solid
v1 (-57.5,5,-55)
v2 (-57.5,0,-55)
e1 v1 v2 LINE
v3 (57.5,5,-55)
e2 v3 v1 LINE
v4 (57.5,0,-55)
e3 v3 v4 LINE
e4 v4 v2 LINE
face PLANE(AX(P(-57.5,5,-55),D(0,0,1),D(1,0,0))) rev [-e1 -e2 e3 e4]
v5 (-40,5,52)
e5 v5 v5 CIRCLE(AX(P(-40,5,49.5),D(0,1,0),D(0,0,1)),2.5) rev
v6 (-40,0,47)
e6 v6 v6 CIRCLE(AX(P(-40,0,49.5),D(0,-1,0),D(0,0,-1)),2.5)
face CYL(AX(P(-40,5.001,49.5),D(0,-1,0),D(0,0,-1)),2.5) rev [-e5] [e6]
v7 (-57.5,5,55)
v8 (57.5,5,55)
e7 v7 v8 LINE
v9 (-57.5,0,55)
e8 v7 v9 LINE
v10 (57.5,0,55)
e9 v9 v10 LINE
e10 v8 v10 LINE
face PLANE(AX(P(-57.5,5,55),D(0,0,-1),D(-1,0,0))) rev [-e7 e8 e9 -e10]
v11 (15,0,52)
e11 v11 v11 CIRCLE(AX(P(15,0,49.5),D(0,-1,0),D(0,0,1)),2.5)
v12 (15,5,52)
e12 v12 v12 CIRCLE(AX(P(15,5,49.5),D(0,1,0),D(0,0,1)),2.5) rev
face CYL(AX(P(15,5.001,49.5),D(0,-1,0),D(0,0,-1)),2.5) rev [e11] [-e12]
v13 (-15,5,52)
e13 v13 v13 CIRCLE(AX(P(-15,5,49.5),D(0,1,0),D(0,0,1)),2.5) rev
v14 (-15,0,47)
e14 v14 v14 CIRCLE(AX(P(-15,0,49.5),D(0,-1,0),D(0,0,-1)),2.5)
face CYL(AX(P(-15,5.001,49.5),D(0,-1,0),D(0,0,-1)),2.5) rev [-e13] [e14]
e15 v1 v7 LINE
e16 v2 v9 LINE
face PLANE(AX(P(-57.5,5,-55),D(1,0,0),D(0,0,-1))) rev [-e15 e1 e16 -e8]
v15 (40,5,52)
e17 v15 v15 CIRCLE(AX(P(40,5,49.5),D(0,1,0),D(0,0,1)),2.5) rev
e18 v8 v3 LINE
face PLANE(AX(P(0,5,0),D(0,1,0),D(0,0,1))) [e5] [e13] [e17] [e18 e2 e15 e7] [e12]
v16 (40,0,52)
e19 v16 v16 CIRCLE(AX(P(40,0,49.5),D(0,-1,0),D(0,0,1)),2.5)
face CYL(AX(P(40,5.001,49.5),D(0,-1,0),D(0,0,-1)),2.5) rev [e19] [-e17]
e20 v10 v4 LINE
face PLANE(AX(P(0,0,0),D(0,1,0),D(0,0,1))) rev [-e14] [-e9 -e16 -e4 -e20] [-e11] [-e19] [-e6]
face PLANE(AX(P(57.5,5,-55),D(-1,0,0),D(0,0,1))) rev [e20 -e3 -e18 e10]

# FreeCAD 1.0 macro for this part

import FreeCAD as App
import Part
import Sketcher

V = App.Vector

doc = App.newDocument("Part")
body = doc.addObject("PartDesign::Body", "Body")

# Sketch on XZ plane
sketch1 = body.newObject("Sketcher::SketchObject", "Sketch")
sketch1.AttachmentSupport = (doc.getObject("XZ_Plane"), [""])
sketch1.MapMode = "FlatFace"
sketch1.addGeometry(Part.LineSegment(V(-58, -55, 0), V(-58, 55, 0)), False)
sketch1.addGeometry(Part.LineSegment(V(-58, 55, 0), V(58, 55, 0)), False)
sketch1.addGeometry(Part.LineSegment(V(58, 55, 0), V(58, -55, 0)), False)
sketch1.addGeometry(Part.LineSegment(V(58, -55, 0), V(-58, -55, 0)), False)
sketch1.addConstraint(Sketcher.Constraint("Coincident", 0, 2, 1, 1))
sketch1.addConstraint(Sketcher.Constraint("Coincident", 1, 2, 2, 1))
sketch1.addConstraint(Sketcher.Constraint("Coincident", 2, 2, 3, 1))
sketch1.addConstraint(Sketcher.Constraint("Coincident", 3, 2, 0, 1))
sketch1.addConstraint(Sketcher.Constraint("Vertical", 0))
sketch1.addConstraint(Sketcher.Constraint("Horizontal", 1))
sketch1.addConstraint(Sketcher.Constraint("Vertical", 2))
sketch1.addConstraint(Sketcher.Constraint("Horizontal", 3))
sketch1.addConstraint(Sketcher.Constraint("Symmetric", 0, 2, 2, 2, -1, 1))
sketch1.addConstraint(Sketcher.Constraint("DistanceX", 1, 1, 1, 2, 115.0))
sketch1.addConstraint(Sketcher.Constraint("DistanceY", 0, 1, 0, 2, 110.0))
pad1 = body.newObject("PartDesign::Pad", "Pad")
pad1.Profile = sketch1
pad1.Length = 5
pad1.Reversed = True

# Sketch on XZ plane
sketch2 = body.newObject("Sketcher::SketchObject", "Sketch001")
sketch2.AttachmentSupport = (doc.getObject("XZ_Plane"), [""])
sketch2.MapMode = "FlatFace"
sketch2.addGeometry(Part.Circle(V(-40, 49.5, 0), V(0, 0, 1), 2.5), False)
sketch2.addConstraint(Sketcher.Constraint("Diameter", 0, 5.0))
sketch2.addConstraint(Sketcher.Constraint("DistanceX", 0, 3, -1, 1, 40.0))
sketch2.addConstraint(Sketcher.Constraint("DistanceY", -1, 1, 0, 3, 49.5))
pocket1 = body.newObject("PartDesign::Pocket", "Pocket")
pocket1.Profile = sketch2
pocket1.Type = "UpToFirst"

# Sketch on XZ plane
sketch3 = body.newObject("Sketcher::SketchObject", "Sketch002")
sketch3.AttachmentSupport = (doc.getObject("XZ_Plane"), [""])
sketch3.MapMode = "FlatFace"
sketch3.addGeometry(Part.Circle(V(-15, 49.5, 0), V(0, 0, 1), 2.5), False)
sketch3.addConstraint(Sketcher.Constraint("Diameter", 0, 5.0))
sketch3.addConstraint(Sketcher.Constraint("DistanceX", 0, 3, -1, 1, 15.0))
sketch3.addConstraint(Sketcher.Constraint("DistanceY", -1, 1, 0, 3, 49.5))
pocket2 = body.newObject("PartDesign::Pocket", "Pocket001")
pocket2.Profile = sketch3
pocket2.Type = "UpToFirst"

# Sketch on XZ plane
sketch4 = body.newObject("Sketcher::SketchObject", "Sketch003")
sketch4.AttachmentSupport = (doc.getObject("XZ_Plane"), [""])
sketch4.MapMode = "FlatFace"
sketch4.addGeometry(Part.Circle(V(40, 49.5, 0), V(0, 0, 1), 2.5), False)
sketch4.addConstraint(Sketcher.Constraint("Diameter", 0, 5.0))
sketch4.addConstraint(Sketcher.Constraint("DistanceX", -1, 1, 0, 3, 40.0))
sketch4.addConstraint(Sketcher.Constraint("DistanceY", -1, 1, 0, 3, 49.5))
pocket3 = body.newObject("PartDesign::Pocket", "Pocket002")
pocket3.Profile = sketch4
pocket3.Type = "UpToFirst"

# Sketch on XZ plane
sketch5 = body.newObject("Sketcher::SketchObject", "Sketch004")
sketch5.AttachmentSupport = (doc.getObject("XZ_Plane"), [""])
sketch5.MapMode = "FlatFace"
sketch5.addGeometry(Part.Circle(V(15, 49.5, 0), V(0, 0, 1), 2.5), False)
sketch5.addConstraint(Sketcher.Constraint("Diameter", 0, 5.0))
sketch5.addConstraint(Sketcher.Constraint("DistanceX", -1, 1, 0, 3, 15.0))
sketch5.addConstraint(Sketcher.Constraint("DistanceY", -1, 1, 0, 3, 49.5))
pocket4 = body.newObject("PartDesign::Pocket", "Pocket003")
pocket4.Profile = sketch5
pocket4.Type = "UpToFirst"

doc.recompute()
